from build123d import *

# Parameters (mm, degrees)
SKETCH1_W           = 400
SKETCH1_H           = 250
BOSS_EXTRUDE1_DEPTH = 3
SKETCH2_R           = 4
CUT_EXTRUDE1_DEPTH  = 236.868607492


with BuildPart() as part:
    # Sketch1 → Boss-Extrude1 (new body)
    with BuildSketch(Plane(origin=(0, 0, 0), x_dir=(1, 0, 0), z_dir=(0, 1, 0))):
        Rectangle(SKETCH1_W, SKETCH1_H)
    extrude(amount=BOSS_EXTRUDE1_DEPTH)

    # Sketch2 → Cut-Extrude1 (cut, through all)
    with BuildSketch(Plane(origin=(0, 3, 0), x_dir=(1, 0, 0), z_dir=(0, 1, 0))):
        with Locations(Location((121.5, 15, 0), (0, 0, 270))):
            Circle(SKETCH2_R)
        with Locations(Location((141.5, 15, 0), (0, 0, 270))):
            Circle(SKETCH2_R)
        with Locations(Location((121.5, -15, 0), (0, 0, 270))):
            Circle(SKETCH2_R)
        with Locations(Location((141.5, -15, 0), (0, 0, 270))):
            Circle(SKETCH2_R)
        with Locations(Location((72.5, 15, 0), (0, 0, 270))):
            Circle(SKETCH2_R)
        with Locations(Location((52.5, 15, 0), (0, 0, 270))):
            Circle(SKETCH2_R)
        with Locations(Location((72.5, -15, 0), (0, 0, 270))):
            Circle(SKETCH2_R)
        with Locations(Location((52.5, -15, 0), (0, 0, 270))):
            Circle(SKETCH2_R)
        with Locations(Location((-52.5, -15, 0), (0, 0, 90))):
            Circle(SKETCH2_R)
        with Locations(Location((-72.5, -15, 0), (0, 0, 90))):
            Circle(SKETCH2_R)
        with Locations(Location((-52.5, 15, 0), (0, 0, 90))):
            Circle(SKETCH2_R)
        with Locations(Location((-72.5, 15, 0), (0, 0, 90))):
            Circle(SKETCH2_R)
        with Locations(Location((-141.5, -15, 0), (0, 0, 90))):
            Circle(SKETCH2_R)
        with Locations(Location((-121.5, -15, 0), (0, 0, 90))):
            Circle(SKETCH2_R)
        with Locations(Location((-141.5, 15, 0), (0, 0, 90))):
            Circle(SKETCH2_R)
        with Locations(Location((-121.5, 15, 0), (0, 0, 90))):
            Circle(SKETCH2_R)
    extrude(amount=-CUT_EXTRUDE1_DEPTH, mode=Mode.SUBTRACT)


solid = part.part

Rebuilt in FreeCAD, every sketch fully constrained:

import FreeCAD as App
import Part
import Sketcher

V = App.Vector
Q = App.Units.Quantity


def add_polygon(sketch, points):
    """Adds a closed chain of lines whose ends are joined by coincident constraints."""
    first, n = sketch.GeometryCount, len(points)
    for a, b in zip(points, points[1:] + points[:1]):
        sketch.addGeometry(Part.LineSegment(App.Vector(*a, 0), App.Vector(*b, 0)), False)
    for i in range(n):
        sketch.addConstraint(Sketcher.Constraint("Coincident", first + i, 2, first + (i + 1) % n, 1))

doc = App.newDocument("Part")
params = doc.addObject("Spreadsheet::Sheet", "Params")
for row, (alias, value) in enumerate([
    ("sketch1_width", "400 mm"),
    ("sketch1_height", "250 mm"),
    ("pad1_length", "3 mm"),
    ("sketch2_diameter", "8 mm"),
], start=1):
    params.set(f"A{row}", alias)
    params.set(f"B{row}", "=" + value)
    params.setAlias(f"B{row}", alias)

body = doc.addObject("PartDesign::Body", "Body")

sketch1 = body.newObject("Sketcher::SketchObject", "Sketch")
sketch1.AttachmentSupport = (doc.getObject("XZ_Plane"), [""])
sketch1.MapMode = "FlatFace"
add_polygon(sketch1, [(-200, -125), (-200, 125), (200, 125), (200, -125)])
sketch1.addConstraint(Sketcher.Constraint("Vertical", 0))
sketch1.addConstraint(Sketcher.Constraint("Horizontal", 1))
sketch1.addConstraint(Sketcher.Constraint("Vertical", 2))
sketch1.addConstraint(Sketcher.Constraint("Horizontal", 3))
sketch1.addConstraint(Sketcher.Constraint("Symmetric", 0, 2, 2, 2, -1, 1))
sketch1.addConstraint(Sketcher.Constraint("DistanceX", 1, 1, 1, 2, Q("400 mm")))
sketch1.addConstraint(Sketcher.Constraint("DistanceY", 0, 1, 0, 2, Q("250 mm")))
sketch1.setExpression("Constraints[9]", "Params.sketch1_width")
sketch1.setExpression("Constraints[10]", "Params.sketch1_height")
pad1 = body.newObject("PartDesign::Pad", "Pad")
pad1.Profile = sketch1
pad1.setExpression("Length", "Params.pad1_length")
pad1.Reversed = True

sketch2 = body.newObject("Sketcher::SketchObject", "Sketch001")
sketch2.AttachmentSupport = (doc.getObject("XZ_Plane"), [""])
sketch2.MapMode = "FlatFace"
sketch2.AttachmentOffset = App.Placement(V(0, 0, -3), App.Rotation())
sketch2.addGeometry(Part.Circle(V(121.5, -15, 0), V(0, 0, 1), 4), False)
sketch2.addGeometry(Part.Circle(V(141.5, -15, 0), V(0, 0, 1), 4), False)
sketch2.addGeometry(Part.Circle(V(121.5, 15, 0), V(0, 0, 1), 4), False)
sketch2.addGeometry(Part.Circle(V(141.5, 15, 0), V(0, 0, 1), 4), False)
sketch2.addGeometry(Part.Circle(V(72.5, -15, 0), V(0, 0, 1), 4), False)
sketch2.addGeometry(Part.Circle(V(52.5, -15, 0), V(0, 0, 1), 4), False)
sketch2.addGeometry(Part.Circle(V(72.5, 15, 0), V(0, 0, 1), 4), False)
sketch2.addGeometry(Part.Circle(V(52.5, 15, 0), V(0, 0, 1), 4), False)
sketch2.addGeometry(Part.Circle(V(-52.5, 15, 0), V(0, 0, 1), 4), False)
sketch2.addGeometry(Part.Circle(V(-72.5, 15, 0), V(0, 0, 1), 4), False)
sketch2.addGeometry(Part.Circle(V(-52.5, -15, 0), V(0, 0, 1), 4), False)
sketch2.addGeometry(Part.Circle(V(-72.5, -15, 0), V(0, 0, 1), 4), False)
sketch2.addGeometry(Part.Circle(V(-141.5, 15, 0), V(0, 0, 1), 4), False)
sketch2.addGeometry(Part.Circle(V(-121.5, 15, 0), V(0, 0, 1), 4), False)
sketch2.addGeometry(Part.Circle(V(-141.5, -15, 0), V(0, 0, 1), 4), False)
sketch2.addGeometry(Part.Circle(V(-121.5, -15, 0), V(0, 0, 1), 4), False)
sketch2.addConstraint(Sketcher.Constraint("Equal", 0, 1))
sketch2.addConstraint(Sketcher.Constraint("Equal", 1, 2))
sketch2.addConstraint(Sketcher.Constraint("Equal", 2, 3))
sketch2.addConstraint(Sketcher.Constraint("Equal", 3, 4))
sketch2.addConstraint(Sketcher.Constraint("Equal", 4, 5))
sketch2.addConstraint(Sketcher.Constraint("Equal", 5, 6))
sketch2.addConstraint(Sketcher.Constraint("Equal", 6, 7))
sketch2.addConstraint(Sketcher.Constraint("Equal", 7, 8))
sketch2.addConstraint(Sketcher.Constraint("Equal", 8, 9))
sketch2.addConstraint(Sketcher.Constraint("Equal", 9, 10))
sketch2.addConstraint(Sketcher.Constraint("Equal", 10, 11))
sketch2.addConstraint(Sketcher.Constraint("Equal", 11, 12))
sketch2.addConstraint(Sketcher.Constraint("Equal", 12, 13))
sketch2.addConstraint(Sketcher.Constraint("Equal", 13, 14))
sketch2.addConstraint(Sketcher.Constraint("Equal", 14, 15))
sketch2.addConstraint(Sketcher.Constraint("Symmetric", 5, 3, 8, 3, -1, 1))
sketch2.addConstraint(Sketcher.Constraint("Symmetric", 4, 3, 9, 3, -1, 1))
sketch2.addConstraint(Sketcher.Constraint("Symmetric", 7, 3, 10, 3, -1, 1))
sketch2.addConstraint(Sketcher.Constraint("Symmetric", 6, 3, 11, 3, -1, 1))
sketch2.addConstraint(Sketcher.Constraint("Symmetric", 1, 3, 12, 3, -1, 1))
sketch2.addConstraint(Sketcher.Constraint("Symmetric", 0, 3, 13, 3, -1, 1))
sketch2.addConstraint(Sketcher.Constraint("Symmetric", 3, 3, 14, 3, -1, 1))
sketch2.addConstraint(Sketcher.Constraint("Symmetric", 2, 3, 15, 3, -1, 1))
sketch2.addConstraint(Sketcher.Constraint("Symmetric", 7, 3, 8, 3, -2))
sketch2.addConstraint(Sketcher.Constraint("Symmetric", 6, 3, 9, 3, -2))
sketch2.addConstraint(Sketcher.Constraint("Symmetric", 3, 3, 12, 3, -2))
sketch2.addConstraint(Sketcher.Constraint("Symmetric", 2, 3, 13, 3, -2))
sketch2.addConstraint(Sketcher.Constraint("Horizontal", 0, 3, 1, 3))
sketch2.addConstraint(Sketcher.Constraint("Horizontal", 1, 3, 4, 3))
sketch2.addConstraint(Sketcher.Constraint("Horizontal", 4, 3, 5, 3))
sketch2.addConstraint(Sketcher.Constraint("Diameter", 0, Q("8 mm")))
sketch2.addConstraint(Sketcher.Constraint("DistanceY", 0, 3, -1, 1, Q("15 mm")))
sketch2.addConstraint(Sketcher.Constraint("DistanceX", 0, 3, 1, 3, Q("20 mm")))
sketch2.addConstraint(Sketcher.Constraint("DistanceX", 4, 3, 0, 3, Q("49 mm")))
sketch2.addConstraint(Sketcher.Constraint("DistanceX", 5, 3, 4, 3, Q("20 mm")))
sketch2.addConstraint(Sketcher.Constraint("DistanceX", 8, 3, 7, 3, Q("105 mm")))
sketch2.setExpression("Constraints[30]", "Params.sketch2_diameter")
pocket1 = body.newObject("PartDesign::Pocket", "Pocket")
pocket1.Profile = sketch2
pocket1.Type = "ThroughAll"
pocket1.Reversed = True

doc.recompute()
